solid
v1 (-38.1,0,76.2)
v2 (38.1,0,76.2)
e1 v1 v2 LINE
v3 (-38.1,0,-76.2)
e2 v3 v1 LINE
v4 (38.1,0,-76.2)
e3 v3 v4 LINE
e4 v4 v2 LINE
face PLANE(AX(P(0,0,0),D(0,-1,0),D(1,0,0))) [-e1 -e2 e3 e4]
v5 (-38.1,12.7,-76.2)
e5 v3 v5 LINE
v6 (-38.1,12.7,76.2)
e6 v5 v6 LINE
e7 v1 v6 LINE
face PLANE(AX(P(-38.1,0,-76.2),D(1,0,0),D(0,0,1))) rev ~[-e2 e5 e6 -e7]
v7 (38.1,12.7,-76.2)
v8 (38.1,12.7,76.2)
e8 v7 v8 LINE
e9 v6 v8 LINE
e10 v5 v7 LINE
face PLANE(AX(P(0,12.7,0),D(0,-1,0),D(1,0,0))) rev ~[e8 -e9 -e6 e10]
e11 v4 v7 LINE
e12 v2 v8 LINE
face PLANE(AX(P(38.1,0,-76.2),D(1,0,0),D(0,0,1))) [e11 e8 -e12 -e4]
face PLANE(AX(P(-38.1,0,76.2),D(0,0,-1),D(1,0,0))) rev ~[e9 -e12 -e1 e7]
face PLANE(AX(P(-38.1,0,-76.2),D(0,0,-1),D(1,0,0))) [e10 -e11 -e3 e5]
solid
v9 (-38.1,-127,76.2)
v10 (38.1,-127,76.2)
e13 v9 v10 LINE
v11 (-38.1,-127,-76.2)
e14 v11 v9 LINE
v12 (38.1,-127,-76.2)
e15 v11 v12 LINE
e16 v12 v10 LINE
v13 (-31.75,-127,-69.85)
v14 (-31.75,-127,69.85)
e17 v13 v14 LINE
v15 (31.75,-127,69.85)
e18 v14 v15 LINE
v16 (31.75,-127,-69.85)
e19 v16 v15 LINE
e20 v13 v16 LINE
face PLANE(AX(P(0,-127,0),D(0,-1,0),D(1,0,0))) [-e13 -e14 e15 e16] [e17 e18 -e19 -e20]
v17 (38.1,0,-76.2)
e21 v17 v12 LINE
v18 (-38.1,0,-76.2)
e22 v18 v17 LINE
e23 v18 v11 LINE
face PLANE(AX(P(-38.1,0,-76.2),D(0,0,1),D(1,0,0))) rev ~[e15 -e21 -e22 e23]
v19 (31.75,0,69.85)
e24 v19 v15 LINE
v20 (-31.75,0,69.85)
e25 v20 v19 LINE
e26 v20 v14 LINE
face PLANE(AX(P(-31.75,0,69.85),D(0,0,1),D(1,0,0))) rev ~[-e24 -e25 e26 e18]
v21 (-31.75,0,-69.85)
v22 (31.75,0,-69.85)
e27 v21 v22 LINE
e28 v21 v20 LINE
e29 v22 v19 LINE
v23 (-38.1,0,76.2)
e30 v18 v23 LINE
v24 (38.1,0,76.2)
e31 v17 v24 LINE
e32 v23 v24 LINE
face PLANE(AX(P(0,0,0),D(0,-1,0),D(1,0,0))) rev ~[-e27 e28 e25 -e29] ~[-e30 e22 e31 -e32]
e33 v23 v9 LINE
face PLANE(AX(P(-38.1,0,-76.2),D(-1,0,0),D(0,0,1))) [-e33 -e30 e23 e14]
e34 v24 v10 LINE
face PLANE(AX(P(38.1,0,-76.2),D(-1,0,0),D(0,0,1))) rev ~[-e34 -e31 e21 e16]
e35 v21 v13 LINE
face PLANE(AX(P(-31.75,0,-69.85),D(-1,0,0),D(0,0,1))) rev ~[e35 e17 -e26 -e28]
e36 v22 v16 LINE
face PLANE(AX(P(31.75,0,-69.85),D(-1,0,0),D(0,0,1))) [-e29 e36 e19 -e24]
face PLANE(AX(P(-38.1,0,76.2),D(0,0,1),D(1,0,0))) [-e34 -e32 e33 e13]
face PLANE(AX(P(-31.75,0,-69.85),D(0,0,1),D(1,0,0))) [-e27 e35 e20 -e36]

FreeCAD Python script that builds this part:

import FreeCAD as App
import Part
import Sketcher
from FreeCAD import Vector
Q = App.Units.Quantity

doc = App.newDocument("Part")
body = doc.addObject("PartDesign::Body", "Body")

sketch1 = body.newObject("Sketcher::SketchObject", "Sketch")
sketch1.AttachmentSupport = (doc.getObject("XZ_Plane"), [""])
sketch1.MapMode = "FlatFace"
sketch1.addGeometry(Part.LineSegment(Vector(-38, 76, 0), Vector(-38, -76, 0)), False)
sketch1.addGeometry(Part.LineSegment(Vector(-38, -76, 0), Vector(38, -76, 0)), False)
sketch1.addGeometry(Part.LineSegment(Vector(38, -76, 0), Vector(38, 76, 0)), False)
sketch1.addGeometry(Part.LineSegment(Vector(38, 76, 0), Vector(-38, 76, 0)), False)
sketch1.addGeometry(Part.LineSegment(Vector(32, -70, 0), Vector(-32, -70, 0)), False)
sketch1.addGeometry(Part.LineSegment(Vector(-32, -70, 0), Vector(-32, 70, 0)), False)
sketch1.addGeometry(Part.LineSegment(Vector(-32, 70, 0), Vector(32, 70, 0)), False)
sketch1.addGeometry(Part.LineSegment(Vector(32, 70, 0), Vector(32, -70, 0)), False)
sketch1.addConstraint(Sketcher.Constraint("Coincident", 0, 2, 1, 1))
sketch1.addConstraint(Sketcher.Constraint("Coincident", 1, 2, 2, 1))
sketch1.addConstraint(Sketcher.Constraint("Coincident", 2, 2, 3, 1))
sketch1.addConstraint(Sketcher.Constraint("Coincident", 3, 2, 0, 1))
sketch1.addConstraint(Sketcher.Constraint("Coincident", 4, 2, 5, 1))
sketch1.addConstraint(Sketcher.Constraint("Coincident", 5, 2, 6, 1))
sketch1.addConstraint(Sketcher.Constraint("Coincident", 6, 2, 7, 1))
sketch1.addConstraint(Sketcher.Constraint("Coincident", 7, 2, 4, 1))
sketch1.addConstraint(Sketcher.Constraint("Vertical", 0))
sketch1.addConstraint(Sketcher.Constraint("Horizontal", 1))
sketch1.addConstraint(Sketcher.Constraint("Vertical", 2))
sketch1.addConstraint(Sketcher.Constraint("Horizontal", 3))
sketch1.addConstraint(Sketcher.Constraint("Horizontal", 4))
sketch1.addConstraint(Sketcher.Constraint("Vertical", 5))
sketch1.addConstraint(Sketcher.Constraint("Horizontal", 6))
sketch1.addConstraint(Sketcher.Constraint("Vertical", 7))
sketch1.addConstraint(Sketcher.Constraint("Symmetric", 0, 2, 2, 2, -1, 1))
sketch1.addConstraint(Sketcher.Constraint("Symmetric", 4, 2, 6, 2, -1, 1))
sketch1.addConstraint(Sketcher.Constraint("DistanceX", 1, 1, 1, 2, Q("3 in")))
sketch1.addConstraint(Sketcher.Constraint("DistanceY", 0, 2, 0, 1, Q("6 in")))
sketch1.addConstraint(Sketcher.Constraint("DistanceX", 4, 2, 4, 1, Q("2.5 in")))
sketch1.addConstraint(Sketcher.Constraint("DistanceY", 5, 1, 5, 2, Q("5.5 in")))
pad1 = body.newObject("PartDesign::Pad", "Pad")
pad1.Profile = sketch1
pad1.Length = Q("5 in")
body2 = doc.addObject("PartDesign::Body", "Body001")

sketch2 = body2.newObject("Sketcher::SketchObject", "Sketch001")
sketch2.AttachmentSupport = (doc.getObject("XZ_Plane001"), [""])
sketch2.MapMode = "FlatFace"
sketch2.addGeometry(Part.LineSegment(Vector(-38, 76, 0), Vector(-38, -76, 0)), False)
sketch2.addGeometry(Part.LineSegment(Vector(-38, -76, 0), Vector(38, -76, 0)), False)
sketch2.addGeometry(Part.LineSegment(Vector(38, -76, 0), Vector(38, 76, 0)), False)
sketch2.addGeometry(Part.LineSegment(Vector(38, 76, 0), Vector(-38, 76, 0)), False)
sketch2.addConstraint(Sketcher.Constraint("Coincident", 0, 2, 1, 1))
sketch2.addConstraint(Sketcher.Constraint("Coincident", 1, 2, 2, 1))
sketch2.addConstraint(Sketcher.Constraint("Coincident", 2, 2, 3, 1))
sketch2.addConstraint(Sketcher.Constraint("Coincident", 3, 2, 0, 1))
sketch2.addConstraint(Sketcher.Constraint("Vertical", 0))
sketch2.addConstraint(Sketcher.Constraint("Horizontal", 1))
sketch2.addConstraint(Sketcher.Constraint("Vertical", 2))
sketch2.addConstraint(Sketcher.Constraint("Horizontal", 3))
sketch2.addConstraint(Sketcher.Constraint("Symmetric", 0, 2, 2, 2, -1, 1))
sketch2.addConstraint(Sketcher.Constraint("DistanceX", 1, 1, 1, 2, Q("3 in")))
sketch2.addConstraint(Sketcher.Constraint("DistanceY", 0, 2, 0, 1, Q("6 in")))
pad2 = body2.newObject("PartDesign::Pad", "Pad001")
pad2.Profile = sketch2
pad2.Length = Q("0.5 in")
pad2.Reversed = True

doc.recompute()
